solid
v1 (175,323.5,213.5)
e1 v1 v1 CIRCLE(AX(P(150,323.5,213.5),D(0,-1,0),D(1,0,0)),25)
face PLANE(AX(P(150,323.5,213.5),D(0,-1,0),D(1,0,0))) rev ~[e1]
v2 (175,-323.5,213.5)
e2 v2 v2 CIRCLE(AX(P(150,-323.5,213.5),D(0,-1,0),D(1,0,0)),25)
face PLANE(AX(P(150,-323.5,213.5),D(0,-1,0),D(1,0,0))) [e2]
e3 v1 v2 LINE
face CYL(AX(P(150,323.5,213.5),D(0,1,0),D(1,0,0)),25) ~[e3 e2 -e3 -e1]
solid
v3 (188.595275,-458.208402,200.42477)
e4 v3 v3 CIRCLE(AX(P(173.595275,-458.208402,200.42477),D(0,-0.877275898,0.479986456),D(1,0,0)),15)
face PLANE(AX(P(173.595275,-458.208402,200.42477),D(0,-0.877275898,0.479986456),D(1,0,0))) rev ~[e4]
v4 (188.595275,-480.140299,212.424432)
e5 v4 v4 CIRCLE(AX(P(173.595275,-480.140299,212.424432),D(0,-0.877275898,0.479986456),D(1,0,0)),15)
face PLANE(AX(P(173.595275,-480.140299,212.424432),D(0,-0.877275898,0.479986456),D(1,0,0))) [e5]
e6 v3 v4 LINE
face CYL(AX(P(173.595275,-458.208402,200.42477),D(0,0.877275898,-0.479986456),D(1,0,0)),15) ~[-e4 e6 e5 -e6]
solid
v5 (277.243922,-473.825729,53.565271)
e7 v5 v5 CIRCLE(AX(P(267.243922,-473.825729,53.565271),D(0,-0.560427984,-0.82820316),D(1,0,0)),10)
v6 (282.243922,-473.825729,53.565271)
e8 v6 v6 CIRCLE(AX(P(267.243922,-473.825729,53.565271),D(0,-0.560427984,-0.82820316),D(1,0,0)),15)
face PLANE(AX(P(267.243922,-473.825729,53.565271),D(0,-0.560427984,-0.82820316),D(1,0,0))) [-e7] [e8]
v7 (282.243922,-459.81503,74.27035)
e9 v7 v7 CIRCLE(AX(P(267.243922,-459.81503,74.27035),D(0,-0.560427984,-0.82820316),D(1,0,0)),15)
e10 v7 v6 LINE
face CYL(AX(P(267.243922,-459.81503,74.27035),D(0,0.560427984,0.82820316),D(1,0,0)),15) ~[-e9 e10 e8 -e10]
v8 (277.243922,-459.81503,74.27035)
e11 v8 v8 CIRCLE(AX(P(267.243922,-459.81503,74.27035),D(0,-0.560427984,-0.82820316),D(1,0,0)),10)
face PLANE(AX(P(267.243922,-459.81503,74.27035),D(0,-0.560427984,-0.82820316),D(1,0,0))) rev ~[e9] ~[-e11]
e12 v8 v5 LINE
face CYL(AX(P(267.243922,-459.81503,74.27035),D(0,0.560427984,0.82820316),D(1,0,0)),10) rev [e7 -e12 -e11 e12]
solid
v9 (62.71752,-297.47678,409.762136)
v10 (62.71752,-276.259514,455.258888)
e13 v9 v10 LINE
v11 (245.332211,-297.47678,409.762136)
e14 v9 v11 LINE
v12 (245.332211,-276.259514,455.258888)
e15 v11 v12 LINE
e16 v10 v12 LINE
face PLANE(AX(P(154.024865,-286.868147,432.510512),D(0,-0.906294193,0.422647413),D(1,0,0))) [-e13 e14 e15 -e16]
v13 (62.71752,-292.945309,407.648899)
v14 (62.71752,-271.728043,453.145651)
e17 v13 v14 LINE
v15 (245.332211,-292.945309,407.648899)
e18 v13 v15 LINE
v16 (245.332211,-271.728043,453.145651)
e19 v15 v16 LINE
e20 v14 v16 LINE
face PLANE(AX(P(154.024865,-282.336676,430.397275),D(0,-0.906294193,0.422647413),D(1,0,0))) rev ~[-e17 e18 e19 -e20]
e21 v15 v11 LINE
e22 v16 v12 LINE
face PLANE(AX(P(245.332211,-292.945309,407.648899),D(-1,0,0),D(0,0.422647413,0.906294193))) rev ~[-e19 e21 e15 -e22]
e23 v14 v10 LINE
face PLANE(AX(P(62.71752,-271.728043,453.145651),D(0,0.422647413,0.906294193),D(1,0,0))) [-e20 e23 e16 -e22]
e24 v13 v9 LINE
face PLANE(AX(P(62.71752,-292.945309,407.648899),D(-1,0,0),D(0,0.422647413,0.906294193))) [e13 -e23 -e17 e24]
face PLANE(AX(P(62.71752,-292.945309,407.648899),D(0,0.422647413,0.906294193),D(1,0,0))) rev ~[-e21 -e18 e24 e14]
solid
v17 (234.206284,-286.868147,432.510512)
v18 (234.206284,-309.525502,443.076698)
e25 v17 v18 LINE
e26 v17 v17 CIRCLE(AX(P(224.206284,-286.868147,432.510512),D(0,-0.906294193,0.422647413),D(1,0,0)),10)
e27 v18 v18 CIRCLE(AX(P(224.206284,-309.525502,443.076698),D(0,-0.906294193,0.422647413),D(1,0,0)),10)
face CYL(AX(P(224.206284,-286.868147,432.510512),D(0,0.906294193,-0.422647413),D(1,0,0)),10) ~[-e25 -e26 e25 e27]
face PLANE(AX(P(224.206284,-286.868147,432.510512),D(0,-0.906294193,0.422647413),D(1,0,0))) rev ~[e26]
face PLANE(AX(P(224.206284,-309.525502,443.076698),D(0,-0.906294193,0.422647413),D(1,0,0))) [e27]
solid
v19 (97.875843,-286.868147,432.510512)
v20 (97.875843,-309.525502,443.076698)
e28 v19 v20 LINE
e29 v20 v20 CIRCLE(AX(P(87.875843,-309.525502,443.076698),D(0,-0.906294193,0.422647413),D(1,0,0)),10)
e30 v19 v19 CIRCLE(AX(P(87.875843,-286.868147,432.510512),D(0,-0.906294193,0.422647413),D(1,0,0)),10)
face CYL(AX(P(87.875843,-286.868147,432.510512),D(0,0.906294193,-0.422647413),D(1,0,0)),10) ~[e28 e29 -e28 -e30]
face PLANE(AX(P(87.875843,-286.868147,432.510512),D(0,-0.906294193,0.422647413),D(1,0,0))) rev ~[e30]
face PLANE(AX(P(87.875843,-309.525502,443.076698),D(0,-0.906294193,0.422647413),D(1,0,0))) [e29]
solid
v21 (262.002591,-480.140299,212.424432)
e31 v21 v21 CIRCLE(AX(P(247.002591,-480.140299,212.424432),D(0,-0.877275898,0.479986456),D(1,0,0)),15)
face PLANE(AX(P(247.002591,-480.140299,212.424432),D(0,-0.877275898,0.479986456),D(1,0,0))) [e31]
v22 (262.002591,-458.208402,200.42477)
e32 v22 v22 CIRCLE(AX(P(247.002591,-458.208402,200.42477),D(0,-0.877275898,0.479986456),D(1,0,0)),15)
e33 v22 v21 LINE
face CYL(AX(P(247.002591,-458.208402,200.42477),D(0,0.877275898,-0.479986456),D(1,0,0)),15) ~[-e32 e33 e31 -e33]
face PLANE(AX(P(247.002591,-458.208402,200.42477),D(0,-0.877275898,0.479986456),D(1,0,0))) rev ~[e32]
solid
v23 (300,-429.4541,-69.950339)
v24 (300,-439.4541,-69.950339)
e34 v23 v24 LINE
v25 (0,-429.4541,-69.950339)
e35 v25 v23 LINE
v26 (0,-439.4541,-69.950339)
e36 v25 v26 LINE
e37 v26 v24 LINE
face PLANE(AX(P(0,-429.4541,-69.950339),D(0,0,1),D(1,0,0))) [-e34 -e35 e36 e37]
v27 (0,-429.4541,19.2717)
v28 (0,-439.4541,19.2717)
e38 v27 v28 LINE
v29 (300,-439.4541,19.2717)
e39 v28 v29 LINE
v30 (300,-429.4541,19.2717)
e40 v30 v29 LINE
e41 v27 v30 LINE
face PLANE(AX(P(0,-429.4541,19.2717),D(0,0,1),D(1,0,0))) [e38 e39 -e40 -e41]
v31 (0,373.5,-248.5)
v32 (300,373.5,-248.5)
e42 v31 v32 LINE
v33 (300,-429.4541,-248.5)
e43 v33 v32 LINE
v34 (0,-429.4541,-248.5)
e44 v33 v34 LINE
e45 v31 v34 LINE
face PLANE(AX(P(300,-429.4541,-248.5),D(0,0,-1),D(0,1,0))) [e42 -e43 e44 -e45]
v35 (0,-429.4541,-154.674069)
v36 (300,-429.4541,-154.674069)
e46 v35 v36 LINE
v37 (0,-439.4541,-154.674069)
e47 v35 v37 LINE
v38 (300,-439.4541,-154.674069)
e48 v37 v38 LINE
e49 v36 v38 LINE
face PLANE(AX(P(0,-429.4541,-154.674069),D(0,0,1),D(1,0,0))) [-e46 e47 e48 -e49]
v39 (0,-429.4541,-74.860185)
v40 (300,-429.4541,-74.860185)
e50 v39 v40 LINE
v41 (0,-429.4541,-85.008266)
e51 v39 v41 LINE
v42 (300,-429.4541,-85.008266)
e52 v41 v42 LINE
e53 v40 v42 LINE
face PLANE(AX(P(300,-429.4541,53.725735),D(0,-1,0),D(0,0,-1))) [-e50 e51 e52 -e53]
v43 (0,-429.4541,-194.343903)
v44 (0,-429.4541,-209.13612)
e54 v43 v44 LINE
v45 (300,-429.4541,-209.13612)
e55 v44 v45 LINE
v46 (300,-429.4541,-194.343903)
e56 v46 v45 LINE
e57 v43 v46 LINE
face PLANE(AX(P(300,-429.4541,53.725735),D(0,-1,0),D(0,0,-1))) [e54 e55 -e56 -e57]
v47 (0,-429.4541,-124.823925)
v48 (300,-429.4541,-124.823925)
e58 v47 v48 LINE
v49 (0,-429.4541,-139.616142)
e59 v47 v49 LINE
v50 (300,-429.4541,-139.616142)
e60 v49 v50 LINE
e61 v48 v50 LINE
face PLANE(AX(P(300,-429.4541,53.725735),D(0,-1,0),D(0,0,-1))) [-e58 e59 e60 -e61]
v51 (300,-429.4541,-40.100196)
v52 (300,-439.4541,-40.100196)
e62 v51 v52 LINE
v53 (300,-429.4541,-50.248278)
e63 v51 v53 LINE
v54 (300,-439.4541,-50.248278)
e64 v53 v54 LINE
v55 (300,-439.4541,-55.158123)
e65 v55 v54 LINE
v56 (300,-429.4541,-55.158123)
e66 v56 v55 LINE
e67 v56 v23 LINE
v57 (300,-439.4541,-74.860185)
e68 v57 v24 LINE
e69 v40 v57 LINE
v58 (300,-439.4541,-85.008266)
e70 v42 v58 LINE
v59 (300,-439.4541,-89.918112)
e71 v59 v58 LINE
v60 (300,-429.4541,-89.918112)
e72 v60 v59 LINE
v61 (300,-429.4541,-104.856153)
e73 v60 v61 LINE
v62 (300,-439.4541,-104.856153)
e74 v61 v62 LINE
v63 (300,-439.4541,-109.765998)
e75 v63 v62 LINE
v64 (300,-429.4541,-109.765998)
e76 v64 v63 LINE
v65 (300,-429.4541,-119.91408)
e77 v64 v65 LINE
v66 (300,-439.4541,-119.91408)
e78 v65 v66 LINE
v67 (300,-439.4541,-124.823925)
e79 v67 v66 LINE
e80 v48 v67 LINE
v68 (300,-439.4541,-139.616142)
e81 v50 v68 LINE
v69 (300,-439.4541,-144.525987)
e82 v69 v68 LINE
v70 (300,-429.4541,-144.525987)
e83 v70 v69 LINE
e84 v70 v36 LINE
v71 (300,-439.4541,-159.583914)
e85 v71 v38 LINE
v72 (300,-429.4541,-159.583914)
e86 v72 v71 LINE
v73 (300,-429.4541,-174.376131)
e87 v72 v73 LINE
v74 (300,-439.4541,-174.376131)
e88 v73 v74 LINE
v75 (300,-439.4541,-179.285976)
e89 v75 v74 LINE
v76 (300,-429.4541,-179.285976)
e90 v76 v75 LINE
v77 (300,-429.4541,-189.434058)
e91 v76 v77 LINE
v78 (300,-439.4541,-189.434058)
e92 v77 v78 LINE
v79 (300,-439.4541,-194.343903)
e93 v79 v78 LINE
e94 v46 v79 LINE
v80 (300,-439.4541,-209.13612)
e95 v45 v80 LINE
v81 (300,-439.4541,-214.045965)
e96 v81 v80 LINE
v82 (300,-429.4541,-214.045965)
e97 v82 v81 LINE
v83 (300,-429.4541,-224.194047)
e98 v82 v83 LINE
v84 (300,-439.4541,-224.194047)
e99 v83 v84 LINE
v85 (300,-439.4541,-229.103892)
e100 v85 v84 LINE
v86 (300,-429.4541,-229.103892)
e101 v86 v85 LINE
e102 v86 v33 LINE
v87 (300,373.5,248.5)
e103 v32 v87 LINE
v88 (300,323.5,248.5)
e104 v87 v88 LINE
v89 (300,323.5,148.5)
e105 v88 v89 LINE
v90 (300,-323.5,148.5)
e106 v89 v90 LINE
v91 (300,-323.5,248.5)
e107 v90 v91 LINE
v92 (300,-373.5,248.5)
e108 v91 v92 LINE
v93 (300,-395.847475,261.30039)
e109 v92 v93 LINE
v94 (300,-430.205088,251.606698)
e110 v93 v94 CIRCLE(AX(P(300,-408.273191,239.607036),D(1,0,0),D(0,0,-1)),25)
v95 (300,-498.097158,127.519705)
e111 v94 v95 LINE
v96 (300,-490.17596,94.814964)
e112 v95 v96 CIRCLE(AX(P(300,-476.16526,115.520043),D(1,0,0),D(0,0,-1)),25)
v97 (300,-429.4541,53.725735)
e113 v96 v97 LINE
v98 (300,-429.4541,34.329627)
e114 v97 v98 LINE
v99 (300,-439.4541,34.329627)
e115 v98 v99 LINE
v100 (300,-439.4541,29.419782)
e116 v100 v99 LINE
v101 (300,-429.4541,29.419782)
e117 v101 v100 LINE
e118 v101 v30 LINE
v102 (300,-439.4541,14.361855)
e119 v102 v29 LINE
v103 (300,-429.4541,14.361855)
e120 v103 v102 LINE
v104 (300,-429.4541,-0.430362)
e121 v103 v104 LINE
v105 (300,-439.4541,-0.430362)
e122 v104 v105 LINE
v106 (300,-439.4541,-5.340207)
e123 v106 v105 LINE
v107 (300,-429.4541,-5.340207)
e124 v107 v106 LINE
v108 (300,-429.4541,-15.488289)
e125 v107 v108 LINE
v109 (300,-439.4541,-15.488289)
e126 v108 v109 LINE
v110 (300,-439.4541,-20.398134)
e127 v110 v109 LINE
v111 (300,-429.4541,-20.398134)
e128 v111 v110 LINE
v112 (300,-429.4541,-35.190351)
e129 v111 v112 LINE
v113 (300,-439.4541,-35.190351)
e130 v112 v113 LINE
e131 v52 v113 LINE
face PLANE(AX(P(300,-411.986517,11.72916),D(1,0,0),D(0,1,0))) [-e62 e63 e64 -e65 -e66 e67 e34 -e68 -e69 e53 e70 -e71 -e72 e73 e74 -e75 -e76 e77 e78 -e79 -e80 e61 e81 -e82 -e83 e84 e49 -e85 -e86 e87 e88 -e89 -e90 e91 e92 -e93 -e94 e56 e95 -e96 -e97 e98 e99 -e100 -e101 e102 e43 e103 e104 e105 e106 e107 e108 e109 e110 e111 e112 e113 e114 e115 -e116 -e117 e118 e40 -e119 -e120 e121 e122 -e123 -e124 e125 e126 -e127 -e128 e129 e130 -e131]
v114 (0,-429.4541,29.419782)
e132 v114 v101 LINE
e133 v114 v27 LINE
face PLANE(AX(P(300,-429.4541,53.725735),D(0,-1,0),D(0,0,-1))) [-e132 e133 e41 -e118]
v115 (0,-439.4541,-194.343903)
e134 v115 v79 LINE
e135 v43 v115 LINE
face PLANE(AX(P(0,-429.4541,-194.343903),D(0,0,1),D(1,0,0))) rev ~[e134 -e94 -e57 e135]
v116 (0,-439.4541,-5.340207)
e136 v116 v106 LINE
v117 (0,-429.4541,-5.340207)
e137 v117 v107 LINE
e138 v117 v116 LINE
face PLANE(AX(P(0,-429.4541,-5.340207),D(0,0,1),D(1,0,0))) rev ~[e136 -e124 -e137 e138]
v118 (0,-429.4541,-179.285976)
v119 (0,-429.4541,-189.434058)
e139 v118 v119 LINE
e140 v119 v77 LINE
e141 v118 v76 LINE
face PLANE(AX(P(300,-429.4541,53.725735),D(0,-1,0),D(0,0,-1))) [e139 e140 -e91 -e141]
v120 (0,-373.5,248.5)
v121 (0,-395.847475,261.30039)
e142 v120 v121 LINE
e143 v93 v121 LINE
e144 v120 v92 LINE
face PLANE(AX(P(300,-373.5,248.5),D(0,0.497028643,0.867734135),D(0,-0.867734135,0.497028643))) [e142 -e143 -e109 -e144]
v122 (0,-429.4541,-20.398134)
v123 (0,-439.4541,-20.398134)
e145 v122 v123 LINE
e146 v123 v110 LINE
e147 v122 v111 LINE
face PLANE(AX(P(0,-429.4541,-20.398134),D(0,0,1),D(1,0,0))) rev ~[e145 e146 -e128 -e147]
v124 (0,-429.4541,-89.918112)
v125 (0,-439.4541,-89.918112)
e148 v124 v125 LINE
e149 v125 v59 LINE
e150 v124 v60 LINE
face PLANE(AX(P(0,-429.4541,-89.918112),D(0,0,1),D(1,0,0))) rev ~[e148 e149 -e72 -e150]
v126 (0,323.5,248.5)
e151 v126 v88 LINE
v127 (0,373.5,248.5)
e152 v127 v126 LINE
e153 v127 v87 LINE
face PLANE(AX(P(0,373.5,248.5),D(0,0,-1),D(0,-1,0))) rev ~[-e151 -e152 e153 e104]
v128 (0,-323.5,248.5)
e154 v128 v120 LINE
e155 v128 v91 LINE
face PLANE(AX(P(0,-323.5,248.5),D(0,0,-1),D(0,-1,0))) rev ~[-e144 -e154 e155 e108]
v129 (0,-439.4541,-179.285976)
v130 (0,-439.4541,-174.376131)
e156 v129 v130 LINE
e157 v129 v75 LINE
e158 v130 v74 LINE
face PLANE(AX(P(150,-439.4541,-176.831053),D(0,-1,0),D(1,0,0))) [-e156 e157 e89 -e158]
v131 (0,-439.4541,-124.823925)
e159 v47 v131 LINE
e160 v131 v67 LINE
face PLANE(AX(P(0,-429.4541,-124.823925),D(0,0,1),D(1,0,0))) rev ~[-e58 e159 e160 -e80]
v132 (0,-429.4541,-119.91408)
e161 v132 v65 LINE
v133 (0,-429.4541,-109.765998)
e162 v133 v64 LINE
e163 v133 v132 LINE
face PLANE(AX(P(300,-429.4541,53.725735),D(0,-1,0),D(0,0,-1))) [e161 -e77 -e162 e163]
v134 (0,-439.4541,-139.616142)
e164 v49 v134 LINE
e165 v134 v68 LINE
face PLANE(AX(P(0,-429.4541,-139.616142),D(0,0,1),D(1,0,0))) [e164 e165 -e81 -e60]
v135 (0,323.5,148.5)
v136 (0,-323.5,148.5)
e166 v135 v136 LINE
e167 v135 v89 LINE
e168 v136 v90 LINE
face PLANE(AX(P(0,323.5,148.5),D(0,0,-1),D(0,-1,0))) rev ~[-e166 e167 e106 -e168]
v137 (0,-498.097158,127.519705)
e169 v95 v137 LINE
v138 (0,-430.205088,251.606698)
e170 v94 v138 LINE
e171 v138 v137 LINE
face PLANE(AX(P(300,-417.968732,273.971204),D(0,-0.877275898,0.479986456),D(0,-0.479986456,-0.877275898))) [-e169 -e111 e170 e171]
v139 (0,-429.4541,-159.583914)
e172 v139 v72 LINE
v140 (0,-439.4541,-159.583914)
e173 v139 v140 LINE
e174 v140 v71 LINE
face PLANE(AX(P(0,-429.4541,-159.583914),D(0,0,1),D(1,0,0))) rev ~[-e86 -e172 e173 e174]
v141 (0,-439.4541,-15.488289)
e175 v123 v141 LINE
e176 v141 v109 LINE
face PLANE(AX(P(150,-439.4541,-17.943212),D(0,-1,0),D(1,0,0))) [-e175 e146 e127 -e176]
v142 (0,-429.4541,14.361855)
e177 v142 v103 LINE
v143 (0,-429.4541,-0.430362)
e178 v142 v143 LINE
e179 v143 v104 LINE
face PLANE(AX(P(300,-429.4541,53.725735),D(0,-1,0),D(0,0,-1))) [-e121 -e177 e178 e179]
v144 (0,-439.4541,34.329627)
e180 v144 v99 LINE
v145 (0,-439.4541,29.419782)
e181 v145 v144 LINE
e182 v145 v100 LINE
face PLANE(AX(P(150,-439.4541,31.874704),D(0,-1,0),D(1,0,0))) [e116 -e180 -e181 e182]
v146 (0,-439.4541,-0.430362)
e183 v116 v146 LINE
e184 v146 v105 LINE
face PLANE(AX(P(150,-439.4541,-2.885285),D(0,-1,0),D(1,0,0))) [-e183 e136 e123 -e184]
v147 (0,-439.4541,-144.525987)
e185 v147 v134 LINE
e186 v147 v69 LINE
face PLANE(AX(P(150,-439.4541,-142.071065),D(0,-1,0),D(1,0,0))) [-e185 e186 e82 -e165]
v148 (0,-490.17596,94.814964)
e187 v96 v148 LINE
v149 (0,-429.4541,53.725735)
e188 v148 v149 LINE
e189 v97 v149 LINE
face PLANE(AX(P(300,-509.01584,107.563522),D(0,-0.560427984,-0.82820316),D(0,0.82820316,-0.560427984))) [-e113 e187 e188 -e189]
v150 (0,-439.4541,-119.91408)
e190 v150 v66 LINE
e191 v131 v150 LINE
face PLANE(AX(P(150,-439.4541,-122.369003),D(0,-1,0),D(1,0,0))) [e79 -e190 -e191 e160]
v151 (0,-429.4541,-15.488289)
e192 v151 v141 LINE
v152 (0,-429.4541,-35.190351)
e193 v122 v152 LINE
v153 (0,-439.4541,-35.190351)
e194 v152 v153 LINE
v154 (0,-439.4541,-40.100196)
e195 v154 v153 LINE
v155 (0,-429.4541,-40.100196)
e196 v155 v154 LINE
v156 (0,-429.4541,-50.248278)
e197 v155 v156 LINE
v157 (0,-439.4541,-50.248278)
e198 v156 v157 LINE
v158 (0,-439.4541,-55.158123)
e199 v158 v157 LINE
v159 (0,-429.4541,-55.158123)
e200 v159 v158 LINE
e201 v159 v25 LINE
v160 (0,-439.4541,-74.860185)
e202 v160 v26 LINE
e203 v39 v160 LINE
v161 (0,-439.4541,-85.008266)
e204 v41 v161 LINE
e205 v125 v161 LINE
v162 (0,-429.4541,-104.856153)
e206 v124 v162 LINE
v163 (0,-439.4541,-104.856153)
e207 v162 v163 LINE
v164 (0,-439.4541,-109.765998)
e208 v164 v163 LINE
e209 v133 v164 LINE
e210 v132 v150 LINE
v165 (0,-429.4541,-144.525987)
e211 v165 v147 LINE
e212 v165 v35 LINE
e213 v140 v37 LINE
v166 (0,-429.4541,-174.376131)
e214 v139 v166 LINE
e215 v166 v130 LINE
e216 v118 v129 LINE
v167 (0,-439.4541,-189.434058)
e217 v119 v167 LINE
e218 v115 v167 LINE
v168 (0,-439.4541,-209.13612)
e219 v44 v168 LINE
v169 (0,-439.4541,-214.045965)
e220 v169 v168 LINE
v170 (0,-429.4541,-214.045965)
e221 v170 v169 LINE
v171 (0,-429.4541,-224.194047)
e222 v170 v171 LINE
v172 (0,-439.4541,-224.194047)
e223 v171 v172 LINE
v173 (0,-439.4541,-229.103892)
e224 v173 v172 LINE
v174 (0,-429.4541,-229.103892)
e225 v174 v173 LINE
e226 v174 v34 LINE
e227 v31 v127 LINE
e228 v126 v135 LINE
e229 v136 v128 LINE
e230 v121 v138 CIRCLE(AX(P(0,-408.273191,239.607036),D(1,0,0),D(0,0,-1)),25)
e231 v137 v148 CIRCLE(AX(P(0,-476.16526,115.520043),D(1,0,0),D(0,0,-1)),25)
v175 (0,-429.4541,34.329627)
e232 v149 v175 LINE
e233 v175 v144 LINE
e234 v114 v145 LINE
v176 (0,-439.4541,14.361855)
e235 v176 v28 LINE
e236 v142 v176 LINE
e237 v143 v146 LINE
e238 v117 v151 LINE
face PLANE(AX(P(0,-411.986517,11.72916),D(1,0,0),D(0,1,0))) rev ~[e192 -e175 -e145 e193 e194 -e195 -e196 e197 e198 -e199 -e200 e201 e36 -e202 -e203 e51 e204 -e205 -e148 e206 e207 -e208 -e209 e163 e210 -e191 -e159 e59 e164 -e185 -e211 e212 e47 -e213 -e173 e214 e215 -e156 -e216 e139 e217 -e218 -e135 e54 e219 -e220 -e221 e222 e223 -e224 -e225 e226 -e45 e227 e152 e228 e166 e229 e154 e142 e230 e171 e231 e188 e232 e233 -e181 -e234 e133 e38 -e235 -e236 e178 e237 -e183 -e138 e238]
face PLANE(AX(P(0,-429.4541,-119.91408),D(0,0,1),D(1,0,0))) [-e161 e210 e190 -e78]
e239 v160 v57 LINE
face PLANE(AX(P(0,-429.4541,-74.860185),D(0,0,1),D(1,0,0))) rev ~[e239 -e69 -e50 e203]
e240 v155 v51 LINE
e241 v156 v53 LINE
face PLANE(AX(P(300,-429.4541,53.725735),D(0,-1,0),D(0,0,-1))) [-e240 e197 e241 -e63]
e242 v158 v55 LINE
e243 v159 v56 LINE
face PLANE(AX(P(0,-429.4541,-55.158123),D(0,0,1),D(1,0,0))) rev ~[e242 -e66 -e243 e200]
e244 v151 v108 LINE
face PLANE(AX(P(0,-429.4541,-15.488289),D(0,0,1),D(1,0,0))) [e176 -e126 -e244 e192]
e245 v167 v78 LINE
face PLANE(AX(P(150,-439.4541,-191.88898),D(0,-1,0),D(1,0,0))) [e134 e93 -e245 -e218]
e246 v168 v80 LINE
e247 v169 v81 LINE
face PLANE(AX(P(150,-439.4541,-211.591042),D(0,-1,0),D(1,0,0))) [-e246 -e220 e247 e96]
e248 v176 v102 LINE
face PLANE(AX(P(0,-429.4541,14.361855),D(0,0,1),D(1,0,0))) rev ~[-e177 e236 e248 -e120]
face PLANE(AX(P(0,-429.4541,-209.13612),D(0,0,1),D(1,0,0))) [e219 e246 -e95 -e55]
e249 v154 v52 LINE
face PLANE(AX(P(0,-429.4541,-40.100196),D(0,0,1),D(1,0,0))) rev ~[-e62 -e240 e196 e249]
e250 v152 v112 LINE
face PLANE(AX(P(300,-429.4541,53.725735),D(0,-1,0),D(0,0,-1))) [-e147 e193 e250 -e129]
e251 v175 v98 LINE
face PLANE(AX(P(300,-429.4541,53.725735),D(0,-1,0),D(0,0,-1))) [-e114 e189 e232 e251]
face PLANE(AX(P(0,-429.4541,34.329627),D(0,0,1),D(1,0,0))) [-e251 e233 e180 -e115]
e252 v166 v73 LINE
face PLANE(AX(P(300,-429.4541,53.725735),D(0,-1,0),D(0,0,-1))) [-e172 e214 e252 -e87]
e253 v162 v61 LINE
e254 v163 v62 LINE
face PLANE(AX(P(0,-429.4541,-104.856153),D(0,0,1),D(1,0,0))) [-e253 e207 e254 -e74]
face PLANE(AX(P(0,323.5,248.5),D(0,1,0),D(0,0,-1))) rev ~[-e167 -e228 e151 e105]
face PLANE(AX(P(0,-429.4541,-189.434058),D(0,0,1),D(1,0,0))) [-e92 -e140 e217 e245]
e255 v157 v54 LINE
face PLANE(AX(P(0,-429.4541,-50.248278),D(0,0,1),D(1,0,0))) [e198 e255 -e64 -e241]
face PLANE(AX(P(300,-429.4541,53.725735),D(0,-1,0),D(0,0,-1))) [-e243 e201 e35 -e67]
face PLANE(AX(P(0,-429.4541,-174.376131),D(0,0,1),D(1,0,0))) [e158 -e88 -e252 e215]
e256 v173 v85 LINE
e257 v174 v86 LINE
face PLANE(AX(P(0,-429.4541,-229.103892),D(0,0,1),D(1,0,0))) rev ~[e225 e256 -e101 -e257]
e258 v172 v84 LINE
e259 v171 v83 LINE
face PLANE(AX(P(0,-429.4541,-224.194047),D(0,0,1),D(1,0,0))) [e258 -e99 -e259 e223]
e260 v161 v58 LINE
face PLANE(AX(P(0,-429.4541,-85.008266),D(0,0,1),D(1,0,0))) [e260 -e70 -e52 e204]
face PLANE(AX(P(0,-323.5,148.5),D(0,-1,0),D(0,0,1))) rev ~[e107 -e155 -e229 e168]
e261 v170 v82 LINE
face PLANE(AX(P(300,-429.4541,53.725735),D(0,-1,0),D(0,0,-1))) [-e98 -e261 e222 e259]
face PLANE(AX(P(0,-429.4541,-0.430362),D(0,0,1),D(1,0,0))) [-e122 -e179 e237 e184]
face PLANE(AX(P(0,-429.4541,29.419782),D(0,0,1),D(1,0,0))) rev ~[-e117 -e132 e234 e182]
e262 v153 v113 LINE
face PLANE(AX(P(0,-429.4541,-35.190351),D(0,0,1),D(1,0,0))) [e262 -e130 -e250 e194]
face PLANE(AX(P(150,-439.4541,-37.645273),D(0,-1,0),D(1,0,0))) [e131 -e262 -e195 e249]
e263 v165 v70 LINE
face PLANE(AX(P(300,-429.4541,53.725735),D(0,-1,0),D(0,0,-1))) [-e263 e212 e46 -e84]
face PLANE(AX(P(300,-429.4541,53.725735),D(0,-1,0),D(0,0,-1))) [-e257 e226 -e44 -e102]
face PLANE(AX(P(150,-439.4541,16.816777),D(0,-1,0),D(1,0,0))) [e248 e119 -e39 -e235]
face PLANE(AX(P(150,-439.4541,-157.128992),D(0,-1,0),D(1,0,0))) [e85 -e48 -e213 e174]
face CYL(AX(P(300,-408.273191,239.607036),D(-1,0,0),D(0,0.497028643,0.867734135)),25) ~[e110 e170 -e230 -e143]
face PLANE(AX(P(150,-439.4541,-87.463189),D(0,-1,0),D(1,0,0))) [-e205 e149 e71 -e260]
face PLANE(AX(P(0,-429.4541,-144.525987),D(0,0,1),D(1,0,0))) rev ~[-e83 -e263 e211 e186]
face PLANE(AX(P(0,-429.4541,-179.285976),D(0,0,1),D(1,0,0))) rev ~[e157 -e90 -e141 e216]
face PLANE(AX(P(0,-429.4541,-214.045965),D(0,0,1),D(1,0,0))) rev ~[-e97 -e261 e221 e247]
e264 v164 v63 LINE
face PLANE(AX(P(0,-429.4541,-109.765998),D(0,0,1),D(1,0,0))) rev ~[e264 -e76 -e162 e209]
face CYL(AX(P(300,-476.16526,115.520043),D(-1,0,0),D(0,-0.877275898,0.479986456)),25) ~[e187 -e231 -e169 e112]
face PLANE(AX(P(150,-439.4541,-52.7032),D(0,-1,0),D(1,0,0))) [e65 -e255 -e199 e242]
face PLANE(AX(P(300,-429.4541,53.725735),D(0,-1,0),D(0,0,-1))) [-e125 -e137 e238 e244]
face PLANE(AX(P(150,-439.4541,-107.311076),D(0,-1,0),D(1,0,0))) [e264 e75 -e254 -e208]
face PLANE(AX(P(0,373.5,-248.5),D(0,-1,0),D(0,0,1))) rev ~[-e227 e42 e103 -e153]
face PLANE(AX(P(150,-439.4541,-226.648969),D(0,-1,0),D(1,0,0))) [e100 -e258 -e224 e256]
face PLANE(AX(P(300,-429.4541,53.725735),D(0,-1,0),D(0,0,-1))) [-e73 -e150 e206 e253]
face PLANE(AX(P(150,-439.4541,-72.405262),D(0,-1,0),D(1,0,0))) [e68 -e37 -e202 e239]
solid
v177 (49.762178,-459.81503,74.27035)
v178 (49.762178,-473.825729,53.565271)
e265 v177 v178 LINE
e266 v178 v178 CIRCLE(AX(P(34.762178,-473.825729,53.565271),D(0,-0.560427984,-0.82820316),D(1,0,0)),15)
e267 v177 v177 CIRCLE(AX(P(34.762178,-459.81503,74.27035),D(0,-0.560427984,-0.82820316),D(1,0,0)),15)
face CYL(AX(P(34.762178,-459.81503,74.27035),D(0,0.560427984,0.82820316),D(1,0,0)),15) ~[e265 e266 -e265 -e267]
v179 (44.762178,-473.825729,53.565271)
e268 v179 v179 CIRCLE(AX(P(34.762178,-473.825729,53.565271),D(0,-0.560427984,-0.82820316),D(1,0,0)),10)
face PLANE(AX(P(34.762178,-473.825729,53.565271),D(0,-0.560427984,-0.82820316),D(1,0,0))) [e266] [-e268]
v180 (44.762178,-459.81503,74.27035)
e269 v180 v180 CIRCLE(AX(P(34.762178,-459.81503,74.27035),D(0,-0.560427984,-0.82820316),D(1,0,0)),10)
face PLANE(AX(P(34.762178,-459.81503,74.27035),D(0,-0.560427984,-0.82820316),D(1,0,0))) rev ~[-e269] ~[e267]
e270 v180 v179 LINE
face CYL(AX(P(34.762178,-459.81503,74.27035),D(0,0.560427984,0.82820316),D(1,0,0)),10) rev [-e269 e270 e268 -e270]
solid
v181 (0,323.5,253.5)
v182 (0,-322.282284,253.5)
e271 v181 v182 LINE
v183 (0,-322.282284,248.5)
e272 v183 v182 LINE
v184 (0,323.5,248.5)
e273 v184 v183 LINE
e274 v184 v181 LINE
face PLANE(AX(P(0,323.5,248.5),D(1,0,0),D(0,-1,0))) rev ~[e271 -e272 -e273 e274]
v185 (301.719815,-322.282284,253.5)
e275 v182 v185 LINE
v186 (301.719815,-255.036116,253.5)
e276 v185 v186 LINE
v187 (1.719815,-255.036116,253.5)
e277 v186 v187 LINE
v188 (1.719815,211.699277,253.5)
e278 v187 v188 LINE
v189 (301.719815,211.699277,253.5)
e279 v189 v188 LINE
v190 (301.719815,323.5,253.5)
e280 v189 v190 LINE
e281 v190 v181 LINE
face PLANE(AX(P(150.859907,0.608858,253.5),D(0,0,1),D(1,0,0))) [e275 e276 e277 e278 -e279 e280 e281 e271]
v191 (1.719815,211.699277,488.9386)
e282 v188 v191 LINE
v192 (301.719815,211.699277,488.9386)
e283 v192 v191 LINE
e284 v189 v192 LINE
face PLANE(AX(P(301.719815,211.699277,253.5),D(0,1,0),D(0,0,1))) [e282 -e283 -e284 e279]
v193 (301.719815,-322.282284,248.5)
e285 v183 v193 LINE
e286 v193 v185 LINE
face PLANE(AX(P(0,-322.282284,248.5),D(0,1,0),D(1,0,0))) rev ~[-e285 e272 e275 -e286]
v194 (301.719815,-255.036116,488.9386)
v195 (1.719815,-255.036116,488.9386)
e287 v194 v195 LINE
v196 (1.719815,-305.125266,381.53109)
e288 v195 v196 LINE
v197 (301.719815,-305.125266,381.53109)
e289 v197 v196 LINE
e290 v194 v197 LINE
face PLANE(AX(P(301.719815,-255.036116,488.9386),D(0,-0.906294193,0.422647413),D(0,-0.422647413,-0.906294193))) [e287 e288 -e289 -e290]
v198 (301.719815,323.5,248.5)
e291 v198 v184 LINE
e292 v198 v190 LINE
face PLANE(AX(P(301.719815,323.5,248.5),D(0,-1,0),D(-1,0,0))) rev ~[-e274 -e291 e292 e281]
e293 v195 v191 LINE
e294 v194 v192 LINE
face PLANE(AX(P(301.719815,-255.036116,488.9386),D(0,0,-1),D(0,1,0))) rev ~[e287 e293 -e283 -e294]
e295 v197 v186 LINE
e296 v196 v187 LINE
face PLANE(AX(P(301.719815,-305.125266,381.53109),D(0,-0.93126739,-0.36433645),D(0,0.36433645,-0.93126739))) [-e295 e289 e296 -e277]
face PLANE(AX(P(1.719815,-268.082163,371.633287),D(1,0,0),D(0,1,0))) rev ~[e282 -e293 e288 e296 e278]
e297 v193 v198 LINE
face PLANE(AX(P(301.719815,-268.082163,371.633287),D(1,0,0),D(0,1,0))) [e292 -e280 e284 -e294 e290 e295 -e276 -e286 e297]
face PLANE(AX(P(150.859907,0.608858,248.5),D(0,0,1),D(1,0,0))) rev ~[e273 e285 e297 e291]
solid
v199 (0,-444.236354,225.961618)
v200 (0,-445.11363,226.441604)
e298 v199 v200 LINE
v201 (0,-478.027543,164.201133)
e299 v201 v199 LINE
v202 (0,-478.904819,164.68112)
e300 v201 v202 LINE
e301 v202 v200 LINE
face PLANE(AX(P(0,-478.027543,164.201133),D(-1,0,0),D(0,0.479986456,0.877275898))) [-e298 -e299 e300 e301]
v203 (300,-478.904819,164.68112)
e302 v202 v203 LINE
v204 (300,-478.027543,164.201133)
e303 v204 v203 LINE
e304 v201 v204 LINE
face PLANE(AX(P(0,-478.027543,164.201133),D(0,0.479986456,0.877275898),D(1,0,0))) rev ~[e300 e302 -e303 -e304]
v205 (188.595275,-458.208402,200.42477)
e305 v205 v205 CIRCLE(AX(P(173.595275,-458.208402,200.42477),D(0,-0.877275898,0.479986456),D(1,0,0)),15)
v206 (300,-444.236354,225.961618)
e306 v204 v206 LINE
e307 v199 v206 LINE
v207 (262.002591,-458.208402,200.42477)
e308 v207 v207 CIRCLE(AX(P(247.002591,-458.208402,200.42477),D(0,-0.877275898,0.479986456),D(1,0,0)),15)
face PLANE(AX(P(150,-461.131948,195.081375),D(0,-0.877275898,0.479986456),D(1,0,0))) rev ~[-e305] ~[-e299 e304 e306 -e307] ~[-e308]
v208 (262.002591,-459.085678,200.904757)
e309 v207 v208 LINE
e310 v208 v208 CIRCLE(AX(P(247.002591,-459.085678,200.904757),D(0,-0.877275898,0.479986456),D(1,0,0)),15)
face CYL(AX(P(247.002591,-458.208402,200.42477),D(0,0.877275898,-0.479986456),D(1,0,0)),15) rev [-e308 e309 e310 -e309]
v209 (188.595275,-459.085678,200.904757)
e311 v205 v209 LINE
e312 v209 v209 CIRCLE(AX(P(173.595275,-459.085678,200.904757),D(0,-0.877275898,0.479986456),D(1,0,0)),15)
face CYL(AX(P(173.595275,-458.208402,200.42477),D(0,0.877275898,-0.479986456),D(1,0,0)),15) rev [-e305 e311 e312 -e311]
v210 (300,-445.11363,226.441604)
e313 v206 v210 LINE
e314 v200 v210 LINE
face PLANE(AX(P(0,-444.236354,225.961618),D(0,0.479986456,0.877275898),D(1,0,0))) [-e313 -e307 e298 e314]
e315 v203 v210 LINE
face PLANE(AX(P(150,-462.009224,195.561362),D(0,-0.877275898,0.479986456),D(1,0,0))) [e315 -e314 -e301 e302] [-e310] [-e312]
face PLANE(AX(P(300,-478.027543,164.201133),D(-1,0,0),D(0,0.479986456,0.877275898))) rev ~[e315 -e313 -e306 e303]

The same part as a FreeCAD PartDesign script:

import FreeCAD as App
import Part
import Sketcher

V = App.Vector


def edges_at(feature, points):
    """Names of the edges that pass closest to the given points."""
    edges = feature.Shape.Edges
    near = lambda p: min(range(len(edges)), key=lambda i: edges[i].distToShape(Part.Vertex(*p))[0])
    return sorted({f"Edge{near(p) + 1}" for p in points})


def add_polygon(sketch, points):
    """Adds a closed chain of lines whose ends are joined by coincident constraints."""
    first, n = sketch.GeometryCount, len(points)
    for a, b in zip(points, points[1:] + points[:1]):
        sketch.addGeometry(Part.LineSegment(App.Vector(*a, 0), App.Vector(*b, 0)), False)
    for i in range(n):
        sketch.addConstraint(Sketcher.Constraint("Coincident", first + i, 2, first + (i + 1) % n, 1))

doc = App.newDocument("Part")
body = doc.addObject("PartDesign::Body", "Body")

# Sketch on YZ plane
sketch1 = body.newObject("Sketcher::SketchObject", "Sketch")
sketch1.AttachmentSupport = (doc.getObject("YZ_Plane"), [""])
sketch1.MapMode = "FlatFace"
add_polygon(sketch1, [(-374, 248), (-374, -248), (374, -248), (374, 248), (324, 248), (324, 148), (-324, 148), (-324, 248)])  # lines 0-7
sketch1.addConstraint([
    Sketcher.Constraint("Vertical", 0),
    Sketcher.Constraint("Horizontal", 1),
    Sketcher.Constraint("Vertical", 2),
    Sketcher.Constraint("Horizontal", 3),
    Sketcher.Constraint("Vertical", 4),
    Sketcher.Constraint("Horizontal", 5),
    Sketcher.Constraint("Vertical", 6),
    Sketcher.Constraint("Horizontal", 7),
    Sketcher.Constraint("Symmetric", 0, 2, 2, 2, -1, 1),
    Sketcher.Constraint("Symmetric", 3, 2, 6, 2, -2),
    Sketcher.Constraint("DistanceX", 1, 1, 1, 2, 747.0),
    Sketcher.Constraint("DistanceX", 3, 2, 3, 1, 50.0),
    Sketcher.Constraint("DistanceY", 0, 2, 0, 1, 497.0),
    Sketcher.Constraint("DistanceY", 4, 2, 4, 1, 100.0),
])
pad1 = body.newObject("PartDesign::Pad", "Pad")
pad1.Profile = sketch1
pad1.Length = 300

# Sketch on YZ plane
sketch2 = body.newObject("Sketcher::SketchObject", "Sketch001")
sketch2.AttachmentSupport = (doc.getObject("YZ_Plane"), [""])
sketch2.MapMode = "FlatFace"
sketch2.AttachmentOffset = App.Placement(V(0, 0, 300), App.Rotation())
add_polygon(sketch2, [(-374, -248), (-374, 248), (-418, 274), (-509, 108), (-429, 54), (-429, -248)])  # lines 0-5
sketch2.addConstraint([
    Sketcher.Constraint("Vertical", 0),
    Sketcher.Constraint("Vertical", 4),
    Sketcher.Constraint("Horizontal", 5),
    Sketcher.Constraint("DistanceY", 0, 1, 0, 2, 497.0),
    Sketcher.Constraint("DistanceX", 0, 2, -1, 1, 373.5),
    Sketcher.Constraint("DistanceY", -1, 1, 0, 2, 248.5),
    Sketcher.Constraint("DistanceX", 5, 1, 5, 2, 55.9541),
    Sketcher.Constraint("DistanceY", 4, 2, 4, 1, 302.225735),
    Sketcher.Constraint("DistanceX", 2, 2, -1, 1, 509.01584),
    Sketcher.Constraint("DistanceX", 2, 2, 1, 2, 91.047108),
    Sketcher.Constraint("DistanceY", 3, 2, 1, 2, 220.245469),
    Sketcher.Constraint("Distance", 2, 189.686828),
])
pad2 = body.newObject("PartDesign::Pad", "Pad001")
pad2.Profile = sketch2
pad2.Length = 300
pad2.Reversed = True
doc.recompute()

fillet = body.newObject("PartDesign::Fillet", "Fillet")
fillet.Base = (pad2, edges_at(pad2, [(150, -417.969, 273.971)]))
fillet.Radius = 25
doc.recompute()

fillet2 = body.newObject("PartDesign::Fillet", "Fillet001")
fillet2.Base = (fillet, edges_at(fillet, [(150, -509.016, 107.564)]))
fillet2.Radius = 25

# Sketch on XZ plane
sketch3 = body.newObject("Sketcher::SketchObject", "Sketch002")
sketch3.AttachmentSupport = (doc.getObject("XZ_Plane"), [""])
sketch3.MapMode = "FlatFace"
sketch3.AttachmentOffset = App.Placement(V(0, 0, 429.4541), App.Rotation())
add_polygon(sketch3, [(0, 34.3), (0, 29.4), (300, 29.4), (300, 34.3)])  # lines 0-3
add_polygon(sketch3, [(0, 19.3), (0, 14.4), (300, 14.4), (300, 19.3)])  # lines 4-7
add_polygon(sketch3, [(0, -0.4), (0, -5.3), (300, -5.3), (300, -0.4)])  # lines 8-11
add_polygon(sketch3, [(0, -15.5), (0, -20.4), (300, -20.4), (300, -15.5)])  # lines 12-15
add_polygon(sketch3, [(0, -35.2), (0, -40.1), (300, -40.1), (300, -35.2)])  # lines 16-19
add_polygon(sketch3, [(0, -50.2), (0, -55.2), (300, -55.2), (300, -50.2)])  # lines 20-23
add_polygon(sketch3, [(0, -70), (0, -74.9), (300, -74.9), (300, -70)])  # lines 24-27
add_polygon(sketch3, [(0, -85), (0, -89.9), (300, -89.9), (300, -85)])  # lines 28-31
add_polygon(sketch3, [(0, -104.9), (0, -109.8), (300, -109.8), (300, -104.9)])  # lines 32-35
add_polygon(sketch3, [(0, -119.9), (0, -124.8), (300, -124.8), (300, -119.9)])  # lines 36-39
add_polygon(sketch3, [(0, -139.6), (0, -144.5), (300, -144.5), (300, -139.6)])  # lines 40-43
add_polygon(sketch3, [(0, -154.7), (0, -159.6), (300, -159.6), (300, -154.7)])  # lines 44-47
add_polygon(sketch3, [(0, -174.4), (0, -179.3), (300, -179.3), (300, -174.4)])  # lines 48-51
add_polygon(sketch3, [(0, -189.4), (0, -194.3), (300, -194.3), (300, -189.4)])  # lines 52-55
add_polygon(sketch3, [(0, -209.1), (0, -214), (300, -214), (300, -209.1)])  # lines 56-59
add_polygon(sketch3, [(0, -224.2), (0, -229.1), (300, -229.1), (300, -224.2)])  # lines 60-63
sketch3.addConstraint([
    Sketcher.Constraint("Vertical", 0),
    Sketcher.Constraint("Horizontal", 1),
    Sketcher.Constraint("Vertical", 2),
    Sketcher.Constraint("Horizontal", 3),
    Sketcher.Constraint("Vertical", 4),
    Sketcher.Constraint("Horizontal", 5),
    Sketcher.Constraint("Vertical", 6),
    Sketcher.Constraint("Horizontal", 7),
    Sketcher.Constraint("Vertical", 8),
    Sketcher.Constraint("Horizontal", 9),
    Sketcher.Constraint("Vertical", 10),
    Sketcher.Constraint("Horizontal", 11),
    Sketcher.Constraint("Vertical", 12),
    Sketcher.Constraint("Horizontal", 13),
    Sketcher.Constraint("Vertical", 14),
    Sketcher.Constraint("Horizontal", 15),
    Sketcher.Constraint("Vertical", 16),
    Sketcher.Constraint("Horizontal", 17),
    Sketcher.Constraint("Vertical", 18),
    Sketcher.Constraint("Horizontal", 19),
    Sketcher.Constraint("Vertical", 20),
    Sketcher.Constraint("Horizontal", 21),
    Sketcher.Constraint("Vertical", 22),
    Sketcher.Constraint("Horizontal", 23),
    Sketcher.Constraint("Vertical", 24),
    Sketcher.Constraint("Horizontal", 25),
    Sketcher.Constraint("Vertical", 26),
    Sketcher.Constraint("Horizontal", 27),
    Sketcher.Constraint("Vertical", 28),
    Sketcher.Constraint("Horizontal", 29),
    Sketcher.Constraint("Vertical", 30),
    Sketcher.Constraint("Horizontal", 31),
    Sketcher.Constraint("Vertical", 32),
    Sketcher.Constraint("Horizontal", 33),
    Sketcher.Constraint("Vertical", 34),
    Sketcher.Constraint("Horizontal", 35),
    Sketcher.Constraint("Vertical", 36),
    Sketcher.Constraint("Horizontal", 37),
    Sketcher.Constraint("Vertical", 38),
    Sketcher.Constraint("Horizontal", 39),
    Sketcher.Constraint("Vertical", 40),
    Sketcher.Constraint("Horizontal", 41),
    Sketcher.Constraint("Vertical", 42),
    Sketcher.Constraint("Horizontal", 43),
    Sketcher.Constraint("Vertical", 44),
    Sketcher.Constraint("Horizontal", 45),
    Sketcher.Constraint("Vertical", 46),
    Sketcher.Constraint("Horizontal", 47),
    Sketcher.Constraint("Vertical", 48),
    Sketcher.Constraint("Horizontal", 49),
    Sketcher.Constraint("Vertical", 50),
    Sketcher.Constraint("Horizontal", 51),
    Sketcher.Constraint("Vertical", 52),
    Sketcher.Constraint("Horizontal", 53),
    Sketcher.Constraint("Vertical", 54),
    Sketcher.Constraint("Horizontal", 55),
    Sketcher.Constraint("Vertical", 56),
    Sketcher.Constraint("Horizontal", 57),
    Sketcher.Constraint("Vertical", 58),
    Sketcher.Constraint("Horizontal", 59),
    Sketcher.Constraint("Vertical", 60),
    Sketcher.Constraint("Horizontal", 61),
    Sketcher.Constraint("Vertical", 62),
    Sketcher.Constraint("Horizontal", 63),
    Sketcher.Constraint("PointOnObject", 0, 2, -2),
    Sketcher.Constraint("PointOnObject", 4, 2, -2),
    Sketcher.Constraint("PointOnObject", 8, 2, -2),
    Sketcher.Constraint("PointOnObject", 12, 2, -2),
    Sketcher.Constraint("PointOnObject", 16, 2, -2),
    Sketcher.Constraint("PointOnObject", 20, 2, -2),
    Sketcher.Constraint("PointOnObject", 24, 2, -2),
    Sketcher.Constraint("PointOnObject", 28, 2, -2),
    Sketcher.Constraint("PointOnObject", 32, 2, -2),
    Sketcher.Constraint("PointOnObject", 36, 2, -2),
    Sketcher.Constraint("PointOnObject", 40, 2, -2),
    Sketcher.Constraint("PointOnObject", 44, 2, -2),
    Sketcher.Constraint("PointOnObject", 48, 2, -2),
    Sketcher.Constraint("PointOnObject", 52, 2, -2),
    Sketcher.Constraint("PointOnObject", 56, 2, -2),
    Sketcher.Constraint("PointOnObject", 60, 2, -2),
    Sketcher.Constraint("Vertical", 2, 2, 5, 2),
    Sketcher.Constraint("Vertical", 6, 2, 9, 2),
    Sketcher.Constraint("Vertical", 10, 2, 13, 2),
    Sketcher.Constraint("Vertical", 14, 2, 17, 2),
    Sketcher.Constraint("Vertical", 18, 2, 21, 2),
    Sketcher.Constraint("Vertical", 22, 2, 25, 2),
    Sketcher.Constraint("Vertical", 26, 2, 29, 2),
    Sketcher.Constraint("Vertical", 30, 2, 33, 2),
    Sketcher.Constraint("Vertical", 34, 2, 37, 2),
    Sketcher.Constraint("Vertical", 38, 2, 41, 2),
    Sketcher.Constraint("Vertical", 42, 2, 45, 2),
    Sketcher.Constraint("Vertical", 46, 2, 49, 2),
    Sketcher.Constraint("Vertical", 50, 2, 53, 2),
    Sketcher.Constraint("Vertical", 54, 2, 57, 2),
    Sketcher.Constraint("Vertical", 58, 2, 61, 2),
    Sketcher.Constraint("Equal", 2, 4),
    Sketcher.Constraint("Equal", 6, 8),
    Sketcher.Constraint("Equal", 10, 12),
    Sketcher.Constraint("Equal", 14, 16),
    Sketcher.Constraint("Equal", 18, 20),
    Sketcher.Constraint("Equal", 22, 24),
    Sketcher.Constraint("Equal", 26, 28),
    Sketcher.Constraint("Equal", 30, 32),
    Sketcher.Constraint("Equal", 34, 36),
    Sketcher.Constraint("Equal", 38, 40),
    Sketcher.Constraint("Equal", 42, 44),
    Sketcher.Constraint("Equal", 46, 48),
    Sketcher.Constraint("Equal", 50, 52),
    Sketcher.Constraint("Equal", 54, 56),
    Sketcher.Constraint("Equal", 58, 60),
    Sketcher.Constraint("DistanceX", 1, 1, 1, 2, 300.0),
    Sketcher.Constraint("DistanceY", 32, 2, -1, 1, 109.765998),
    Sketcher.Constraint("DistanceY", -1, 1, 6, 2, 19.2717),
    Sketcher.Constraint("DistanceY", 0, 2, 0, 1, 4.909845),
    Sketcher.Constraint("DistanceY", -1, 1, 0, 2, 29.419782),
    Sketcher.Constraint("DistanceY", 14, 2, -1, 1, 15.488289),
    Sketcher.Constraint("DistanceY", 18, 2, -1, 1, 35.190351),
    Sketcher.Constraint("DistanceY", 26, 2, -1, 1, 69.950339),
    Sketcher.Constraint("DistanceY", 28, 2, -1, 1, 89.918112),
    Sketcher.Constraint("DistanceY", 38, 2, -1, 1, 119.91408),
    Sketcher.Constraint("DistanceY", 46, 2, -1, 1, 154.674069),
    Sketcher.Constraint("DistanceY", 50, 2, -1, 1, 174.376131),
    Sketcher.Constraint("DistanceY", 58, 2, -1, 1, 209.13612),
    Sketcher.Constraint("DistanceY", 60, 2, -1, 1, 229.103892),
    Sketcher.Constraint("DistanceY", 8, 2, -1, 1, 5.340207),
    Sketcher.Constraint("DistanceY", 20, 2, -1, 1, 55.158123),
    Sketcher.Constraint("DistanceY", 40, 2, -1, 1, 144.525987),
    Sketcher.Constraint("DistanceY", 52, 2, -1, 1, 194.343903),
])
pad3 = body.newObject("PartDesign::Pad", "Pad002")
pad3.Profile = sketch3
pad3.Length = 10
body2 = doc.addObject("PartDesign::Body", "Body001")

# Sketch on XZ plane
sketch4 = body2.newObject("Sketcher::SketchObject", "Sketch003")
sketch4.AttachmentSupport = (doc.getObject("XZ_Plane001"), [""])
sketch4.MapMode = "FlatFace"
sketch4.AttachmentOffset = App.Placement(V(0, 0, -323.5), App.Rotation())
sketch4.addGeometry(Part.Circle(V(150, 214, 0), V(0, 0, 1), 25), False)
sketch4.addConstraint([
    Sketcher.Constraint("Diameter", 0, 50.0),
    Sketcher.Constraint("DistanceX", -1, 1, 0, 3, 150.0),
    Sketcher.Constraint("DistanceY", -1, 1, 0, 3, 213.5),
])
pad4 = body2.newObject("PartDesign::Pad", "Pad003")
pad4.Profile = sketch4
pad4.Length = 647
body3 = doc.addObject("PartDesign::Body", "Body002")

# Sketch on an angled plane
sketch5 = body3.newObject("Sketcher::SketchObject", "Sketch004")
sketch5.Placement = App.Placement(V(0, -437.038116, 239.117907), App.Rotation(V(1, 0, 0), V(0, 0.479986456, 0.877275898), V(0, -0.877275898, 0.479986456), "ZXY"))
add_polygon(sketch5, [(0, -15), (0, -85), (300, -85), (300, -15)])  # lines 0-3
sketch5.addGeometry(Part.Circle(V(174, -44, 0), V(0, 0, 1), 15), False)  # 4
sketch5.addGeometry(Part.Circle(V(247, -44, 0), V(0, 0, 1), 15), False)  # 5
sketch5.addConstraint([
    Sketcher.Constraint("Vertical", 0),
    Sketcher.Constraint("Horizontal", 1),
    Sketcher.Constraint("Vertical", 2),
    Sketcher.Constraint("Horizontal", 3),
    Sketcher.Constraint("Equal", 4, 5),
    Sketcher.Constraint("PointOnObject", 0, 2, -2),
    Sketcher.Constraint("Horizontal", 4, 3, 5, 3),
    Sketcher.Constraint("Diameter", 4, 30.0),
    Sketcher.Constraint("DistanceX", 1, 1, 1, 2, 300.0),
    Sketcher.Constraint("DistanceY", 0, 2, 0, 1, 70.400298),
    Sketcher.Constraint("DistanceX", -1, 1, 5, 3, 247.002591),
    Sketcher.Constraint("DistanceY", 0, 2, -1, 1, 85.39705),
    Sketcher.Constraint("DistanceX", -1, 1, 4, 3, 173.595275),
    Sketcher.Constraint("DistanceY", 4, 3, -1, 1, 44.106007),
])
pad5 = body3.newObject("PartDesign::Pad", "Pad004")
pad5.Profile = sketch5
pad5.Length = 1
body4 = doc.addObject("PartDesign::Body", "Body003")

# Sketch on an angled plane
sketch6 = body4.newObject("Sketcher::SketchObject", "Sketch005")
sketch6.Placement = App.Placement(V(0, -437.038116, 239.117907), App.Rotation(V(1, 0, 0), V(0, 0.479986456, 0.877275898), V(0, -0.877275898, 0.479986456), "ZXY"))
sketch6.addGeometry(Part.Circle(V(174, -44, 0), V(0, 0, 1), 15), False)
sketch6.addConstraint([
    Sketcher.Constraint("Diameter", 0, 30.0),
    Sketcher.Constraint("DistanceX", -1, 1, 0, 3, 173.595275),
    Sketcher.Constraint("DistanceY", 0, 3, -1, 1, 44.106007),
])
pad6 = body4.newObject("PartDesign::Pad", "Pad005")
pad6.Profile = sketch6
pad6.Length = 25
body5 = doc.addObject("PartDesign::Body", "Body004")

# Sketch on an angled plane
sketch7 = body5.newObject("Sketcher::SketchObject", "Sketch006")
sketch7.Placement = App.Placement(V(0, -437.038116, 239.117907), App.Rotation(V(1, 0, 0), V(0, 0.479986456, 0.877275898), V(0, -0.877275898, 0.479986456), "ZXY"))
sketch7.addGeometry(Part.Circle(V(247, -44, 0), V(0, 0, 1), 15), False)
sketch7.addConstraint([
    Sketcher.Constraint("Diameter", 0, 30.0),
    Sketcher.Constraint("DistanceX", -1, 1, 0, 3, 247.002591),
    Sketcher.Constraint("DistanceY", 0, 3, -1, 1, 44.106007),
])
pad7 = body5.newObject("PartDesign::Pad", "Pad006")
pad7.Profile = sketch7
pad7.Length = 25
body6 = doc.addObject("PartDesign::Body", "Body005")

# Sketch on an angled plane
sketch8 = body6.newObject("Sketcher::SketchObject", "Sketch007")
sketch8.Placement = App.Placement(V(0, -109.946035, -162.478778), App.Rotation(V(1, 0, 0), V(0, -0.82820316, 0.560427984), V(0, -0.560427984, -0.82820316), "ZXY"))
sketch8.addGeometry([
    Part.Circle(V(35, 422, 0), V(0, 0, 1), 15),
    Part.Circle(V(35, 422, 0), V(0, 0, 1), 10),
], False)
sketch8.addConstraint([
    Sketcher.Constraint("Coincident", 1, 3, 0, 3),
    Sketcher.Constraint("Diameter", 0, 30.0),
    Sketcher.Constraint("Diameter", 1, 20.0),
    Sketcher.Constraint("DistanceX", -1, 1, 0, 3, 34.762178),
    Sketcher.Constraint("DistanceY", -1, 1, 0, 3, 422.443443),
])
pad8 = body6.newObject("PartDesign::Pad", "Pad007")
pad8.Profile = sketch8
pad8.Length = 25
body7 = doc.addObject("PartDesign::Body", "Body006")

# Sketch on an angled plane
sketch9 = body7.newObject("Sketcher::SketchObject", "Sketch008")
sketch9.Placement = App.Placement(V(0, -109.946035, -162.478778), App.Rotation(V(1, 0, 0), V(0, -0.82820316, 0.560427984), V(0, -0.560427984, -0.82820316), "ZXY"))
sketch9.addGeometry([
    Part.Circle(V(267, 422, 0), V(0, 0, 1), 15),
    Part.Circle(V(267, 422, 0), V(0, 0, 1), 10),
], False)
sketch9.addConstraint([
    Sketcher.Constraint("Coincident", 1, 3, 0, 3),
    Sketcher.Constraint("Diameter", 0, 30.0),
    Sketcher.Constraint("Diameter", 1, 20.0),
    Sketcher.Constraint("DistanceX", -1, 1, 0, 3, 267.243922),
    Sketcher.Constraint("DistanceY", -1, 1, 0, 3, 422.443443),
])
pad9 = body7.newObject("PartDesign::Pad", "Pad008")
pad9.Profile = sketch9
pad9.Length = 25
body8 = doc.addObject("PartDesign::Body", "Body007")

# Sketch on XY plane
sketch10 = body8.newObject("Sketcher::SketchObject", "Sketch009")
sketch10.AttachmentSupport = (doc.getObject("XY_Plane007"), [""])
sketch10.MapMode = "FlatFace"
sketch10.AttachmentOffset = App.Placement(V(0, 0, 248.5), App.Rotation())
add_polygon(sketch10, [(0, 324), (0, -322), (302, -322), (302, 324)])  # lines 0-3
sketch10.addConstraint([
    Sketcher.Constraint("Vertical", 0),
    Sketcher.Constraint("Horizontal", 1),
    Sketcher.Constraint("Vertical", 2),
    Sketcher.Constraint("Horizontal", 3),
    Sketcher.Constraint("PointOnObject", 0, 2, -2),
    Sketcher.Constraint("DistanceY", -1, 1, 2, 2, 323.5),
    Sketcher.Constraint("DistanceX", 1, 1, 1, 2, 301.719815),
    Sketcher.Constraint("DistanceY", 0, 2, 0, 1, 645.782284),
])
pad10 = body8.newObject("PartDesign::Pad", "Pad009")
pad10.Profile = sketch10
pad10.Length = 5

# Sketch on YZ plane
sketch11 = body8.newObject("Sketcher::SketchObject", "Sketch010")
sketch11.AttachmentSupport = (doc.getObject("YZ_Plane007"), [""])
sketch11.MapMode = "FlatFace"
sketch11.AttachmentOffset = App.Placement(V(0, 0, 301.719815), App.Rotation())
add_polygon(sketch11, [(-255, 489), (-255, 254), (212, 254), (212, 489)])  # lines 0-3
sketch11.addConstraint([
    Sketcher.Constraint("Vertical", 0),
    Sketcher.Constraint("Horizontal", 1),
    Sketcher.Constraint("Vertical", 2),
    Sketcher.Constraint("Horizontal", 3),
    Sketcher.Constraint("DistanceY", -1, 1, 0, 2, 253.5),
    Sketcher.Constraint("DistanceY", 0, 2, 0, 1, 235.4386),
    Sketcher.Constraint("DistanceX", 1, 1, 1, 2, 466.735393),
    Sketcher.Constraint("DistanceX", 0, 2, -1, 1, 255.036116),
])
pad11 = body8.newObject("PartDesign::Pad", "Pad010")
pad11.Profile = sketch11
pad11.Length = 300
pad11.Reversed = True

# Sketch on YZ plane
sketch12 = body8.newObject("Sketcher::SketchObject", "Sketch011")
sketch12.AttachmentSupport = (doc.getObject("YZ_Plane007"), [""])
sketch12.MapMode = "FlatFace"
sketch12.AttachmentOffset = App.Placement(V(0, 0, 301.719815), App.Rotation())
add_polygon(sketch12, [(-305, 382), (-255, 254), (-255, 489)])  # lines 0-2
sketch12.addConstraint([
    Sketcher.Constraint("Vertical", 1),
    Sketcher.Constraint("DistanceY", -1, 1, 0, 2, 253.5),
    Sketcher.Constraint("DistanceY", 1, 1, 1, 2, 235.4386),
    Sketcher.Constraint("Distance", 0, 137.480482),
    Sketcher.Constraint("DistanceY", -1, 1, 2, 2, 381.53109),
    Sketcher.Constraint("DistanceX", 0, 2, -1, 1, 255.036116),
])
pad12 = body8.newObject("PartDesign::Pad", "Pad011")
pad12.Profile = sketch12
pad12.Length = 300
pad12.Reversed = True
body9 = doc.addObject("PartDesign::Body", "Body008")

# Sketch on an angled plane
sketch13 = body9.newObject("Sketcher::SketchObject", "Sketch012")
sketch13.Placement = App.Placement(V(0, -396.763258, 185.029283), App.Rotation(V(1, 0, 0), V(0, 0.422647413, 0.906294193), V(0, -0.906294193, 0.422647413), "ZXY"))
add_polygon(sketch13, [(63, 296), (63, 246), (245, 246), (245, 296)])  # lines 0-3
sketch13.addConstraint([
    Sketcher.Constraint("Vertical", 0),
    Sketcher.Constraint("Horizontal", 1),
    Sketcher.Constraint("Vertical", 2),
    Sketcher.Constraint("Horizontal", 3),
    Sketcher.Constraint("DistanceX", 1, 1, 1, 2, 182.614692),
    Sketcher.Constraint("DistanceY", 0, 2, 0, 1, 50.200865),
    Sketcher.Constraint("DistanceX", -1, 1, 0, 2, 62.71752),
    Sketcher.Constraint("DistanceY", -1, 1, 0, 2, 245.637253),
])
pad13 = body9.newObject("PartDesign::Pad", "Pad012")
pad13.Profile = sketch13
pad13.Length = 5
body10 = doc.addObject("PartDesign::Body", "Body009")

# Sketch on an angled plane
sketch14 = body10.newObject("Sketcher::SketchObject", "Sketch013")
sketch14.Placement = App.Placement(V(0, -401.294729, 187.14252), App.Rotation(V(1, 0, 0), V(0, 0.422647413, 0.906294193), V(0, -0.906294193, 0.422647413), "ZXY"))
sketch14.addGeometry(Part.Circle(V(88, 271, 0), V(0, 0, 1), 10), False)
sketch14.addConstraint([
    Sketcher.Constraint("Diameter", 0, 20.0),
    Sketcher.Constraint("DistanceX", -1, 1, 0, 3, 87.875843),
    Sketcher.Constraint("DistanceY", -1, 1, 0, 3, 270.737685),
])
pad14 = body10.newObject("PartDesign::Pad", "Pad013")
pad14.Profile = sketch14
pad14.Length = 25
body11 = doc.addObject("PartDesign::Body", "Body010")

# Sketch on an angled plane
sketch15 = body11.newObject("Sketcher::SketchObject", "Sketch014")
sketch15.Placement = App.Placement(V(0, -401.294729, 187.14252), App.Rotation(V(1, 0, 0), V(0, 0.422647413, 0.906294193), V(0, -0.906294193, 0.422647413), "ZXY"))
sketch15.addGeometry(Part.Circle(V(224, 271, 0), V(0, 0, 1), 10), False)
sketch15.addConstraint([
    Sketcher.Constraint("Diameter", 0, 20.0),
    Sketcher.Constraint("DistanceX", -1, 1, 0, 3, 224.206284),
    Sketcher.Constraint("DistanceY", -1, 1, 0, 3, 270.737685),
])
pad15 = body11.newObject("PartDesign::Pad", "Pad014")
pad15.Profile = sketch15
pad15.Length = 25

doc.recompute()
